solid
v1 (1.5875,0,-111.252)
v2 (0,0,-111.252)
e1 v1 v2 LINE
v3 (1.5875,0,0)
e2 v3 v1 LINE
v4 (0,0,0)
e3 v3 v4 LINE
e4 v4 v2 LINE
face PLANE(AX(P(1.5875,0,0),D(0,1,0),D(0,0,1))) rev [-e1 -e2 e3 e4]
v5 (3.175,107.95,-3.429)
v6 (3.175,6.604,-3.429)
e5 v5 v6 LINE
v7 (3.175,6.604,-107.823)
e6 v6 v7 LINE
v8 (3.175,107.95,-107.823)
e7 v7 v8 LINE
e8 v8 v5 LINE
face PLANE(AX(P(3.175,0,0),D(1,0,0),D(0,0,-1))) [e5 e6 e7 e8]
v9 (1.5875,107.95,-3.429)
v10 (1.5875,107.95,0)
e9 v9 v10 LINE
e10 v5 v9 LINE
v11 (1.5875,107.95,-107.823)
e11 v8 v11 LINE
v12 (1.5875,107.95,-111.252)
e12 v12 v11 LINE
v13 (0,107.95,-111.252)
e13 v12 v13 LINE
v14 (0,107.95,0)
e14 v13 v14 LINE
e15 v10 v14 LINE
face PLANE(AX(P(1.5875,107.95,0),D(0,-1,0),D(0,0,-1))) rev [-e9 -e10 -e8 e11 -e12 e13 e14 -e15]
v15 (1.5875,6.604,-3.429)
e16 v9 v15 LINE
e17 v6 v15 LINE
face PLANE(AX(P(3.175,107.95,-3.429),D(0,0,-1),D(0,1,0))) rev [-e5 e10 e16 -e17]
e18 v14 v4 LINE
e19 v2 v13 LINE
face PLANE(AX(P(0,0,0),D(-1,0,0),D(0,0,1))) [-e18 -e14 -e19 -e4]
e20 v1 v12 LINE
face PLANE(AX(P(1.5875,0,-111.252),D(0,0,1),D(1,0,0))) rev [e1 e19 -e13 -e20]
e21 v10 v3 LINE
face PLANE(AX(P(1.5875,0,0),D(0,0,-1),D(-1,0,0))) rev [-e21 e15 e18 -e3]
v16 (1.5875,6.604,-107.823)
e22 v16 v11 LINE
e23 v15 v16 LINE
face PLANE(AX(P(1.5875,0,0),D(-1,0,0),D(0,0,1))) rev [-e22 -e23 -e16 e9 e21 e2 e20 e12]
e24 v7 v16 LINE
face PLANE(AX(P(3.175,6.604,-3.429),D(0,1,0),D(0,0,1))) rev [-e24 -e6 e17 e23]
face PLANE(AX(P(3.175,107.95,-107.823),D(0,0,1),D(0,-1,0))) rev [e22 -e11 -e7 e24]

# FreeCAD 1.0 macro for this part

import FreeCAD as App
import Part
import Sketcher
Q = App.Units.Quantity

doc = App.newDocument("Part")
body = doc.addObject("PartDesign::Body", "Body")

sketch1 = body.newObject("Sketcher::SketchObject", "Sketch")
sketch1.AttachmentSupport = (doc.getObject("YZ_Plane"), [""])
sketch1.MapMode = "FlatFace"
sketch1.addGeometry(Part.LineSegment(App.Vector(108, 0, 0), App.Vector(0, 0, 0)), False)
sketch1.addGeometry(Part.LineSegment(App.Vector(0, 0, 0), App.Vector(0, -111, 0)), False)
sketch1.addGeometry(Part.LineSegment(App.Vector(0, -111, 0), App.Vector(108, -111, 0)), False)
sketch1.addGeometry(Part.LineSegment(App.Vector(108, -111, 0), App.Vector(108, 0, 0)), False)
sketch1.addConstraint(Sketcher.Constraint("Coincident", 0, 2, 1, 1))
sketch1.addConstraint(Sketcher.Constraint("Coincident", 1, 2, 2, 1))
sketch1.addConstraint(Sketcher.Constraint("Coincident", 2, 2, 3, 1))
sketch1.addConstraint(Sketcher.Constraint("Coincident", 3, 2, 0, 1))
sketch1.addConstraint(Sketcher.Constraint("Horizontal", 0))
sketch1.addConstraint(Sketcher.Constraint("Vertical", 1))
sketch1.addConstraint(Sketcher.Constraint("Horizontal", 2))
sketch1.addConstraint(Sketcher.Constraint("Vertical", 3))
sketch1.addConstraint(Sketcher.Constraint("Coincident", 0, 2, -1, 1))
sketch1.addConstraint(Sketcher.Constraint("DistanceX", 0, 2, 0, 1, Q("4.25 in")))
sketch1.addConstraint(Sketcher.Constraint("DistanceY", 1, 2, 1, 1, Q("4.38 in")))
pad1 = body.newObject("PartDesign::Pad", "Pad")
pad1.Profile = sketch1
pad1.Length = Q("0.0625 in")

sketch2 = body.newObject("Sketcher::SketchObject", "Sketch001")
sketch2.AttachmentSupport = (doc.getObject("YZ_Plane"), [""])
sketch2.MapMode = "FlatFace"
sketch2.AttachmentOffset = App.Placement(App.Vector(0, 0, 0.0625 * 25.4), App.Rotation())
sketch2.addGeometry(Part.LineSegment(App.Vector(108, -3, 0), App.Vector(7, -3, 0)), False)
sketch2.addGeometry(Part.LineSegment(App.Vector(7, -3, 0), App.Vector(7, -108, 0)), False)
sketch2.addGeometry(Part.LineSegment(App.Vector(7, -108, 0), App.Vector(108, -108, 0)), False)
sketch2.addGeometry(Part.LineSegment(App.Vector(108, -108, 0), App.Vector(108, -3, 0)), False)
sketch2.addConstraint(Sketcher.Constraint("Coincident", 0, 2, 1, 1))
sketch2.addConstraint(Sketcher.Constraint("Coincident", 1, 2, 2, 1))
sketch2.addConstraint(Sketcher.Constraint("Coincident", 2, 2, 3, 1))
sketch2.addConstraint(Sketcher.Constraint("Coincident", 3, 2, 0, 1))
sketch2.addConstraint(Sketcher.Constraint("Horizontal", 0))
sketch2.addConstraint(Sketcher.Constraint("Vertical", 1))
sketch2.addConstraint(Sketcher.Constraint("Horizontal", 2))
sketch2.addConstraint(Sketcher.Constraint("Vertical", 3))
sketch2.addConstraint(Sketcher.Constraint("DistanceX", 0, 2, 0, 1, Q("3.99 in")))
sketch2.addConstraint(Sketcher.Constraint("DistanceY", 1, 2, 1, 1, Q("4.11 in")))
sketch2.addConstraint(Sketcher.Constraint("DistanceX", -1, 1, 0, 2, Q("0.26 in")))
sketch2.addConstraint(Sketcher.Constraint("DistanceY", 0, 2, -1, 1, Q("0.135 in")))
pad2 = body.newObject("PartDesign::Pad", "Pad001")
pad2.Profile = sketch2
pad2.Length = Q("0.0625 in")

doc.recompute()
